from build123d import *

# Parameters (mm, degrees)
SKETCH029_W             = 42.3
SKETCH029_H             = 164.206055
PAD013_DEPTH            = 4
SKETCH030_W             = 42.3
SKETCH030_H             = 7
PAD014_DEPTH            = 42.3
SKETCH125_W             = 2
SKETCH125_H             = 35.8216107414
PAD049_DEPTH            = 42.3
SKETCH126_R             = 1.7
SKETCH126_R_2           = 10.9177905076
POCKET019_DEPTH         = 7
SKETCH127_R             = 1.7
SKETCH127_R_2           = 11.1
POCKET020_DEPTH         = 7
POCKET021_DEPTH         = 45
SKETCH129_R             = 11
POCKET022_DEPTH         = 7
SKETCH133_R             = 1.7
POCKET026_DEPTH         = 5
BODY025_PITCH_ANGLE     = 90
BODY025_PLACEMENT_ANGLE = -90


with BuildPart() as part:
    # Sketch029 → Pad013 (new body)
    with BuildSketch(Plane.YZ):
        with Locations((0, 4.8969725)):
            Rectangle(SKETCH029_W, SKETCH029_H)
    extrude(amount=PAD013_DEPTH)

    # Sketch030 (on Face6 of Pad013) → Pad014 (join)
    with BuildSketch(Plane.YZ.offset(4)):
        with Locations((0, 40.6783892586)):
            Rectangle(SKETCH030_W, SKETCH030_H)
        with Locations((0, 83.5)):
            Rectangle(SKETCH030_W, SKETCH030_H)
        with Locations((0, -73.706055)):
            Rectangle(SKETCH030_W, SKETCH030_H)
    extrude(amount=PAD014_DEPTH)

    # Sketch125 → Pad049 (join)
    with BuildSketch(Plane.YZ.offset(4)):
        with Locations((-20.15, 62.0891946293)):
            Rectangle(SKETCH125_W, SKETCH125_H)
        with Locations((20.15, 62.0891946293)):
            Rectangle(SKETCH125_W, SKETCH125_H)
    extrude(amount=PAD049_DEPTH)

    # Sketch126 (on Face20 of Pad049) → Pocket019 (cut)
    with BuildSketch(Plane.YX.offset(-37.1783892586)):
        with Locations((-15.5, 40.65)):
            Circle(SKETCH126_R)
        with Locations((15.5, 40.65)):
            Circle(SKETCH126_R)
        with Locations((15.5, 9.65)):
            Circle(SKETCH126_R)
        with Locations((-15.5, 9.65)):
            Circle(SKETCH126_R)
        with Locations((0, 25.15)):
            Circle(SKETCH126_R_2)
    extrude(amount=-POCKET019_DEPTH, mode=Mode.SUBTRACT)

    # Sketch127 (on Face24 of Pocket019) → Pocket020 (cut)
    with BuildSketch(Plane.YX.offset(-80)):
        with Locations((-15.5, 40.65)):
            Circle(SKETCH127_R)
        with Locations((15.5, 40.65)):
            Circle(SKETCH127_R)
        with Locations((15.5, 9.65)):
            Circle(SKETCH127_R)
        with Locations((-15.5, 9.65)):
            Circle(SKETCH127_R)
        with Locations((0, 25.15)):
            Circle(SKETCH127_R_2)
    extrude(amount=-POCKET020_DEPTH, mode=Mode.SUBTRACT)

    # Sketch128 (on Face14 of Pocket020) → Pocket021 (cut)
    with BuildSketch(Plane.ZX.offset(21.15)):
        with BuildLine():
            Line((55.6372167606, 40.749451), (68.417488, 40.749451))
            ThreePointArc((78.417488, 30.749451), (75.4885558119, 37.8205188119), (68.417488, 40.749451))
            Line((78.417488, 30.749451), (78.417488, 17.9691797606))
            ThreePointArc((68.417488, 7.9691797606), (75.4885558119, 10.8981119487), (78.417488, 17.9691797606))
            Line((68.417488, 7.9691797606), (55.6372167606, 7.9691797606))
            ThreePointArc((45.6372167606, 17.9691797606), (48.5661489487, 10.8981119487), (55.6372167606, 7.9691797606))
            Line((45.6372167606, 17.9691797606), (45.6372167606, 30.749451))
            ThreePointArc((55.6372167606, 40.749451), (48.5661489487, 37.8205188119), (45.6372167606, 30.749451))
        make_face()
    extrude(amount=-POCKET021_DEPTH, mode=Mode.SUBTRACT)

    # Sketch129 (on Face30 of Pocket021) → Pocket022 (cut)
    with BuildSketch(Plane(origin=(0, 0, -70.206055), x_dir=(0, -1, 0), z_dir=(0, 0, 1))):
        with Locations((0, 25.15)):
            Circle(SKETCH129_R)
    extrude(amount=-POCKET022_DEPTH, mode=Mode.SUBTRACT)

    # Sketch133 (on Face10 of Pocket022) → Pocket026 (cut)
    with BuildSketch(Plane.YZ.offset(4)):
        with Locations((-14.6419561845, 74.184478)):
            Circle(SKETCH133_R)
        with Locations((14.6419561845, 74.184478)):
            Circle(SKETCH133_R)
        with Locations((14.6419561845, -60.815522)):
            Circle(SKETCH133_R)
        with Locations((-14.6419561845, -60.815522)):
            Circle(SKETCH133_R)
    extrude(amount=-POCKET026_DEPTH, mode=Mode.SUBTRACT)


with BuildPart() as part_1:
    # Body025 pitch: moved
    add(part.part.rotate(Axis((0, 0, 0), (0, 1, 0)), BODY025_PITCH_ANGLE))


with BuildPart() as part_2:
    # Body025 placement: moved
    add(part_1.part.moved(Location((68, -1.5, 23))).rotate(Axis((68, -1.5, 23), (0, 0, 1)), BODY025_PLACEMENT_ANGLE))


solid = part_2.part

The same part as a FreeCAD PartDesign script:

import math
import FreeCAD as App
import Part
import Sketcher
Q = App.Units.Quantity


def add_polygon(sketch, points):
    """Adds a closed chain of lines whose ends are joined by coincident constraints."""
    first, n = sketch.GeometryCount, len(points)
    for a, b in zip(points, points[1:] + points[:1]):
        sketch.addGeometry(Part.LineSegment(App.Vector(*a, 0), App.Vector(*b, 0)), False)
    for i in range(n):
        sketch.addConstraint(Sketcher.Constraint("Coincident", first + i, 2, first + (i + 1) % n, 1))

doc = App.newDocument("Part")
body = doc.addObject("PartDesign::Body", "Body")

# Sketch on YZ plane
sketch1 = body.newObject("Sketcher::SketchObject", "Sketch")
sketch1.AttachmentSupport = (doc.getObject("YZ_Plane"), [""])
sketch1.MapMode = "FlatFace"
add_polygon(sketch1, [(-21, 87), (-21, -77), (21, -77), (21, 87)])  # lines 0-3
sketch1.addConstraint(Sketcher.Constraint("Vertical", 0))
sketch1.addConstraint(Sketcher.Constraint("Horizontal", 1))
sketch1.addConstraint(Sketcher.Constraint("Vertical", 2))
sketch1.addConstraint(Sketcher.Constraint("Horizontal", 3))
sketch1.addConstraint(Sketcher.Constraint("DistanceX", 1, 1, 1, 2, Q("42.3 mm")))
sketch1.addConstraint(Sketcher.Constraint("DistanceY", -1, 1, 2, 2, Q("87 mm")))
sketch1.addConstraint(Sketcher.Constraint("DistanceX", 0, 2, -1, 1, Q("21.15 mm")))
sketch1.addConstraint(Sketcher.Constraint("DistanceY", 0, 2, 0, 1, Q("164.206055 mm")))
pad1 = body.newObject("PartDesign::Pad", "Pad")
pad1.Profile = sketch1
pad1.Length = 4

# Sketch on YZ plane
sketch2 = body.newObject("Sketcher::SketchObject", "Sketch001")
sketch2.AttachmentSupport = (doc.getObject("YZ_Plane"), [""])
sketch2.MapMode = "FlatFace"
sketch2.AttachmentOffset = App.Placement(App.Vector(0, 0, 4), App.Rotation())
add_polygon(sketch2, [(-21, 44), (-21, 37), (21, 37), (21, 44)])  # lines 0-3
add_polygon(sketch2, [(-21, 87), (-21, 80), (21, 80), (21, 87)])  # lines 4-7
add_polygon(sketch2, [(-21, -70), (-21, -77), (21, -77), (21, -70)])  # lines 8-11
sketch2.addConstraint(Sketcher.Constraint("Vertical", 0))
sketch2.addConstraint(Sketcher.Constraint("Horizontal", 1))
sketch2.addConstraint(Sketcher.Constraint("Vertical", 2))
sketch2.addConstraint(Sketcher.Constraint("Horizontal", 3))
sketch2.addConstraint(Sketcher.Constraint("Vertical", 4))
sketch2.addConstraint(Sketcher.Constraint("Horizontal", 5))
sketch2.addConstraint(Sketcher.Constraint("Vertical", 6))
sketch2.addConstraint(Sketcher.Constraint("Horizontal", 7))
sketch2.addConstraint(Sketcher.Constraint("Vertical", 8))
sketch2.addConstraint(Sketcher.Constraint("Horizontal", 9))
sketch2.addConstraint(Sketcher.Constraint("Vertical", 10))
sketch2.addConstraint(Sketcher.Constraint("Horizontal", 11))
sketch2.addConstraint(Sketcher.Constraint("Vertical", 3, 2, 4, 2))
sketch2.addConstraint(Sketcher.Constraint("Vertical", 2, 2, 5, 2))
sketch2.addConstraint(Sketcher.Constraint("Vertical", 7, 2, 8, 2))
sketch2.addConstraint(Sketcher.Constraint("Vertical", 6, 2, 9, 2))
sketch2.addConstraint(Sketcher.Constraint("Equal", 2, 4))
sketch2.addConstraint(Sketcher.Constraint("Equal", 6, 8))
sketch2.addConstraint(Sketcher.Constraint("DistanceY", 0, 2, 0, 1, Q("7 mm")))
sketch2.addConstraint(Sketcher.Constraint("DistanceX", 1, 1, 1, 2, Q("42.3 mm")))
sketch2.addConstraint(Sketcher.Constraint("DistanceY", -1, 1, 4, 2, Q("80 mm")))
sketch2.addConstraint(Sketcher.Constraint("DistanceX", 0, 2, -1, 1, Q("21.15 mm")))
sketch2.addConstraint(Sketcher.Constraint("DistanceY", -1, 1, 0, 2, Q("37.178389 mm")))
sketch2.addConstraint(Sketcher.Constraint("DistanceY", 8, 2, -1, 1, Q("77.206055 mm")))
pad2 = body.newObject("PartDesign::Pad", "Pad001")
pad2.Profile = sketch2
pad2.Length = 42.3

# Sketch on YZ plane
sketch3 = body.newObject("Sketcher::SketchObject", "Sketch002")
sketch3.AttachmentSupport = (doc.getObject("YZ_Plane"), [""])
sketch3.MapMode = "FlatFace"
sketch3.AttachmentOffset = App.Placement(App.Vector(0, 0, 4), App.Rotation())
add_polygon(sketch3, [(-21.1, 80), (-21.1, 44.2), (-19.1, 44.2), (-19.1, 80)])  # lines 0-3
add_polygon(sketch3, [(19.1, 80), (19.1, 44.2), (21.1, 44.2), (21.1, 80)])  # lines 4-7
sketch3.addConstraint(Sketcher.Constraint("Vertical", 0))
sketch3.addConstraint(Sketcher.Constraint("Horizontal", 1))
sketch3.addConstraint(Sketcher.Constraint("Vertical", 2))
sketch3.addConstraint(Sketcher.Constraint("Horizontal", 3))
sketch3.addConstraint(Sketcher.Constraint("Vertical", 4))
sketch3.addConstraint(Sketcher.Constraint("Horizontal", 5))
sketch3.addConstraint(Sketcher.Constraint("Vertical", 6))
sketch3.addConstraint(Sketcher.Constraint("Horizontal", 7))
sketch3.addConstraint(Sketcher.Constraint("Symmetric", 1, 2, 4, 2, -2))
sketch3.addConstraint(Sketcher.Constraint("Symmetric", 3, 2, 6, 2, -2))
sketch3.addConstraint(Sketcher.Constraint("DistanceX", 1, 1, 1, 2, Q("2 mm")))
sketch3.addConstraint(Sketcher.Constraint("DistanceY", -1, 1, 2, 2, Q("80 mm")))
sketch3.addConstraint(Sketcher.Constraint("DistanceX", 1, 2, 4, 2, Q("38.3 mm")))
sketch3.addConstraint(Sketcher.Constraint("DistanceY", 0, 2, 0, 1, Q("35.821611 mm")))
pad3 = body.newObject("PartDesign::Pad", "Pad002")
pad3.Profile = sketch3
pad3.Length = 42.3

# Sketch on XY plane
sketch4 = body.newObject("Sketcher::SketchObject", "Sketch003")
sketch4.AttachmentSupport = (doc.getObject("XY_Plane"), [""])
sketch4.MapMode = "FlatFace"
sketch4.AttachmentOffset = App.Placement(App.Vector(0, 0, 37.178389), App.Rotation())
sketch4.addGeometry(Part.Circle(App.Vector(40.6, -15.5, 0), App.Vector(0, 0, 1), 1.7), False)
sketch4.addGeometry(Part.Circle(App.Vector(40.6, 15.5, 0), App.Vector(0, 0, 1), 1.7), False)
sketch4.addGeometry(Part.Circle(App.Vector(9.7, 15.5, 0), App.Vector(0, 0, 1), 1.7), False)
sketch4.addGeometry(Part.Circle(App.Vector(9.7, -15.5, 0), App.Vector(0, 0, 1), 1.7), False)
sketch4.addGeometry(Part.Circle(App.Vector(25.1, 0, 0), App.Vector(0, 0, 1), 10.9), False)
sketch4.addConstraint(Sketcher.Constraint("Equal", 0, 1))
sketch4.addConstraint(Sketcher.Constraint("Equal", 1, 2))
sketch4.addConstraint(Sketcher.Constraint("Equal", 2, 3))
sketch4.addConstraint(Sketcher.Constraint("Symmetric", 0, 3, 1, 3, -1))
sketch4.addConstraint(Sketcher.Constraint("Symmetric", 2, 3, 3, 3, -1))
sketch4.addConstraint(Sketcher.Constraint("PointOnObject", 4, 3, -1))
sketch4.addConstraint(Sketcher.Constraint("Horizontal", 1, 3, 2, 3))
sketch4.addConstraint(Sketcher.Constraint("Diameter", 0, Q("3.4 mm")))
sketch4.addConstraint(Sketcher.Constraint("DistanceY", 0, 3, 1, 3, Q("31 mm")))
sketch4.addConstraint(Sketcher.Constraint("DistanceX", 2, 3, 1, 3, Q("31 mm")))
sketch4.addConstraint(Sketcher.Constraint("DistanceX", 4, 3, 0, 3, Q("15.5 mm")))
sketch4.addConstraint(Sketcher.Constraint("Diameter", 4, Q("21.835581 mm")))
sketch4.addConstraint(Sketcher.Constraint("DistanceX", -1, 1, 0, 3, Q("40.65 mm")))
pocket1 = body.newObject("PartDesign::Pocket", "Pocket")
pocket1.Profile = sketch4
pocket1.Length = 7
pocket1.Reversed = True

# Sketch on XY plane
sketch5 = body.newObject("Sketcher::SketchObject", "Sketch004")
sketch5.AttachmentSupport = (doc.getObject("XY_Plane"), [""])
sketch5.MapMode = "FlatFace"
sketch5.AttachmentOffset = App.Placement(App.Vector(0, 0, 80), App.Rotation())
sketch5.addGeometry(Part.Circle(App.Vector(40.6, -15.5, 0), App.Vector(0, 0, 1), 1.7), False)
sketch5.addGeometry(Part.Circle(App.Vector(40.6, 15.5, 0), App.Vector(0, 0, 1), 1.7), False)
sketch5.addGeometry(Part.Circle(App.Vector(9.7, 15.5, 0), App.Vector(0, 0, 1), 1.7), False)
sketch5.addGeometry(Part.Circle(App.Vector(9.7, -15.5, 0), App.Vector(0, 0, 1), 1.7), False)
sketch5.addGeometry(Part.Circle(App.Vector(25.1, 0, 0), App.Vector(0, 0, 1), 11.1), False)
sketch5.addConstraint(Sketcher.Constraint("Equal", 0, 1))
sketch5.addConstraint(Sketcher.Constraint("Equal", 1, 2))
sketch5.addConstraint(Sketcher.Constraint("Equal", 2, 3))
sketch5.addConstraint(Sketcher.Constraint("Symmetric", 0, 3, 1, 3, -1))
sketch5.addConstraint(Sketcher.Constraint("Symmetric", 2, 3, 3, 3, -1))
sketch5.addConstraint(Sketcher.Constraint("PointOnObject", 4, 3, -1))
sketch5.addConstraint(Sketcher.Constraint("Horizontal", 1, 3, 2, 3))
sketch5.addConstraint(Sketcher.Constraint("Diameter", 0, Q("3.4 mm")))
sketch5.addConstraint(Sketcher.Constraint("Diameter", 4, Q("22.2 mm")))
sketch5.addConstraint(Sketcher.Constraint("DistanceY", 0, 3, 1, 3, Q("31 mm")))
sketch5.addConstraint(Sketcher.Constraint("DistanceX", 2, 3, 1, 3, Q("31 mm")))
sketch5.addConstraint(Sketcher.Constraint("DistanceX", 4, 3, 0, 3, Q("15.5 mm")))
sketch5.addConstraint(Sketcher.Constraint("DistanceX", -1, 1, 0, 3, Q("40.65 mm")))
pocket2 = body.newObject("PartDesign::Pocket", "Pocket001")
pocket2.Profile = sketch5
pocket2.Length = 7
pocket2.Reversed = True

# Sketch on XZ plane
sketch6 = body.newObject("Sketcher::SketchObject", "Sketch005")
sketch6.AttachmentSupport = (doc.getObject("XZ_Plane"), [""])
sketch6.MapMode = "FlatFace"
sketch6.AttachmentOffset = App.Placement(App.Vector(0, 0, -21.15), App.Rotation())
sketch6.addGeometry(Part.LineSegment(App.Vector(41, 68, 0), App.Vector(41, 56, 0)), False)
sketch6.addGeometry(Part.ArcOfCircle(Part.Circle(App.Vector(31, 56, 0), App.Vector(0, 0, 1), 10), math.radians(-90), math.radians(0)), False)
sketch6.addGeometry(Part.LineSegment(App.Vector(31, 46, 0), App.Vector(18, 46, 0)), False)
sketch6.addGeometry(Part.ArcOfCircle(Part.Circle(App.Vector(18, 56, 0), App.Vector(0, 0, 1), 10), math.radians(180), math.radians(270)), False)
sketch6.addGeometry(Part.LineSegment(App.Vector(8, 56, 0), App.Vector(8, 68, 0)), False)
sketch6.addGeometry(Part.ArcOfCircle(Part.Circle(App.Vector(18, 68, 0), App.Vector(0, 0, 1), 10), math.radians(90), math.radians(180)), False)
sketch6.addGeometry(Part.LineSegment(App.Vector(18, 78, 0), App.Vector(31, 78, 0)), False)
sketch6.addGeometry(Part.ArcOfCircle(Part.Circle(App.Vector(31, 68, 0), App.Vector(0, 0, 1), 10), math.radians(0), math.radians(90)), False)
sketch6.addConstraint(Sketcher.Constraint("Tangent", 0, 2, 1, 2))
sketch6.addConstraint(Sketcher.Constraint("Tangent", 1, 1, 2, 1))
sketch6.addConstraint(Sketcher.Constraint("Tangent", 2, 2, 3, 2))
sketch6.addConstraint(Sketcher.Constraint("Tangent", 3, 1, 4, 1))
sketch6.addConstraint(Sketcher.Constraint("Tangent", 4, 2, 5, 2))
sketch6.addConstraint(Sketcher.Constraint("Tangent", 5, 1, 6, 1))
sketch6.addConstraint(Sketcher.Constraint("Tangent", 6, 2, 7, 2))
sketch6.addConstraint(Sketcher.Constraint("Tangent", 7, 1, 0, 1))
sketch6.addConstraint(Sketcher.Constraint("Vertical", 0))
sketch6.addConstraint(Sketcher.Constraint("Horizontal", 2))
sketch6.addConstraint(Sketcher.Constraint("Vertical", 4))
sketch6.addConstraint(Sketcher.Constraint("Horizontal", 6))
sketch6.addConstraint(Sketcher.Constraint("Equal", 1, 3))
sketch6.addConstraint(Sketcher.Constraint("Equal", 3, 5))
sketch6.addConstraint(Sketcher.Constraint("Equal", 5, 7))
sketch6.addConstraint(Sketcher.Constraint("Equal", 6, 0))
sketch6.addConstraint(Sketcher.Constraint("Radius", 1, Q("10 mm")))
sketch6.addConstraint(Sketcher.Constraint("DistanceX", 2, 2, 2, 1, Q("12.780271 mm")))
sketch6.addConstraint(Sketcher.Constraint("DistanceX", -1, 1, 1, 3, Q("30.749451 mm")))
sketch6.addConstraint(Sketcher.Constraint("DistanceY", -1, 1, 5, 3, Q("68.417488 mm")))
pocket3 = body.newObject("PartDesign::Pocket", "Pocket002")
pocket3.Profile = sketch6
pocket3.Length = 45
pocket3.Reversed = True

# Sketch on XY plane
sketch7 = body.newObject("Sketcher::SketchObject", "Sketch006")
sketch7.AttachmentSupport = (doc.getObject("XY_Plane"), [""])
sketch7.MapMode = "FlatFace"
sketch7.AttachmentOffset = App.Placement(App.Vector(0, 0, -70.206055), App.Rotation())
sketch7.addGeometry(Part.Circle(App.Vector(25, 0, 0), App.Vector(0, 0, 1), 11), False)
sketch7.addConstraint(Sketcher.Constraint("PointOnObject", 0, 3, -1))
sketch7.addConstraint(Sketcher.Constraint("Diameter", 0, Q("22 mm")))
sketch7.addConstraint(Sketcher.Constraint("DistanceX", -1, 1, 0, 3, Q("25.15 mm")))
pocket4 = body.newObject("PartDesign::Pocket", "Pocket003")
pocket4.Profile = sketch7
pocket4.Length = 7

# Sketch on YZ plane
sketch8 = body.newObject("Sketcher::SketchObject", "Sketch007")
sketch8.AttachmentSupport = (doc.getObject("YZ_Plane"), [""])
sketch8.MapMode = "FlatFace"
sketch8.AttachmentOffset = App.Placement(App.Vector(0, 0, 4), App.Rotation())
sketch8.addGeometry(Part.Circle(App.Vector(-14.6, 74.2, 0), App.Vector(0, 0, 1), 1.7), False)
sketch8.addGeometry(Part.Circle(App.Vector(14.6, 74.2, 0), App.Vector(0, 0, 1), 1.7), False)
sketch8.addGeometry(Part.Circle(App.Vector(14.6, -60.8, 0), App.Vector(0, 0, 1), 1.7), False)
sketch8.addGeometry(Part.Circle(App.Vector(-14.6, -60.8, 0), App.Vector(0, 0, 1), 1.7), False)
sketch8.addConstraint(Sketcher.Constraint("Equal", 0, 1))
sketch8.addConstraint(Sketcher.Constraint("Equal", 1, 2))
sketch8.addConstraint(Sketcher.Constraint("Equal", 2, 3))
sketch8.addConstraint(Sketcher.Constraint("Symmetric", 0, 3, 1, 3, -2))
sketch8.addConstraint(Sketcher.Constraint("Symmetric", 2, 3, 3, 3, -2))
sketch8.addConstraint(Sketcher.Constraint("Vertical", 1, 3, 2, 3))
sketch8.addConstraint(Sketcher.Constraint("Diameter", 0, Q("3.4 mm")))
sketch8.addConstraint(Sketcher.Constraint("DistanceY", 2, 3, 1, 3, Q("135 mm")))
sketch8.addConstraint(Sketcher.Constraint("DistanceY", -1, 1, 0, 3, Q("74.184478 mm")))
sketch8.addConstraint(Sketcher.Constraint("DistanceX", 0, 3, -1, 1, Q("14.641956 mm")))
pocket5 = body.newObject("PartDesign::Pocket", "Pocket004")
pocket5.Profile = sketch8
pocket5.Length = 5
body2 = doc.addObject("PartDesign::Body", "Body001")
doc.recompute()

body.Placement = App.Placement(App.Vector(0, 0, 0), App.Rotation(App.Vector(0, 1, 0), 90))
boolean = body2.newObject("PartDesign::Boolean", "Boolean")
boolean.Type = "Fuse"
boolean.addObjects([body])
body3 = doc.addObject("PartDesign::Body", "Body002")
doc.recompute()

body2.Placement = App.Placement(App.Vector(68, -1.5, 23), App.Rotation(App.Vector(0, 0, 1), 270))
boolean2 = body3.newObject("PartDesign::Boolean", "Boolean001")
boolean2.Type = "Fuse"
boolean2.addObjects([body2])

doc.recompute()
